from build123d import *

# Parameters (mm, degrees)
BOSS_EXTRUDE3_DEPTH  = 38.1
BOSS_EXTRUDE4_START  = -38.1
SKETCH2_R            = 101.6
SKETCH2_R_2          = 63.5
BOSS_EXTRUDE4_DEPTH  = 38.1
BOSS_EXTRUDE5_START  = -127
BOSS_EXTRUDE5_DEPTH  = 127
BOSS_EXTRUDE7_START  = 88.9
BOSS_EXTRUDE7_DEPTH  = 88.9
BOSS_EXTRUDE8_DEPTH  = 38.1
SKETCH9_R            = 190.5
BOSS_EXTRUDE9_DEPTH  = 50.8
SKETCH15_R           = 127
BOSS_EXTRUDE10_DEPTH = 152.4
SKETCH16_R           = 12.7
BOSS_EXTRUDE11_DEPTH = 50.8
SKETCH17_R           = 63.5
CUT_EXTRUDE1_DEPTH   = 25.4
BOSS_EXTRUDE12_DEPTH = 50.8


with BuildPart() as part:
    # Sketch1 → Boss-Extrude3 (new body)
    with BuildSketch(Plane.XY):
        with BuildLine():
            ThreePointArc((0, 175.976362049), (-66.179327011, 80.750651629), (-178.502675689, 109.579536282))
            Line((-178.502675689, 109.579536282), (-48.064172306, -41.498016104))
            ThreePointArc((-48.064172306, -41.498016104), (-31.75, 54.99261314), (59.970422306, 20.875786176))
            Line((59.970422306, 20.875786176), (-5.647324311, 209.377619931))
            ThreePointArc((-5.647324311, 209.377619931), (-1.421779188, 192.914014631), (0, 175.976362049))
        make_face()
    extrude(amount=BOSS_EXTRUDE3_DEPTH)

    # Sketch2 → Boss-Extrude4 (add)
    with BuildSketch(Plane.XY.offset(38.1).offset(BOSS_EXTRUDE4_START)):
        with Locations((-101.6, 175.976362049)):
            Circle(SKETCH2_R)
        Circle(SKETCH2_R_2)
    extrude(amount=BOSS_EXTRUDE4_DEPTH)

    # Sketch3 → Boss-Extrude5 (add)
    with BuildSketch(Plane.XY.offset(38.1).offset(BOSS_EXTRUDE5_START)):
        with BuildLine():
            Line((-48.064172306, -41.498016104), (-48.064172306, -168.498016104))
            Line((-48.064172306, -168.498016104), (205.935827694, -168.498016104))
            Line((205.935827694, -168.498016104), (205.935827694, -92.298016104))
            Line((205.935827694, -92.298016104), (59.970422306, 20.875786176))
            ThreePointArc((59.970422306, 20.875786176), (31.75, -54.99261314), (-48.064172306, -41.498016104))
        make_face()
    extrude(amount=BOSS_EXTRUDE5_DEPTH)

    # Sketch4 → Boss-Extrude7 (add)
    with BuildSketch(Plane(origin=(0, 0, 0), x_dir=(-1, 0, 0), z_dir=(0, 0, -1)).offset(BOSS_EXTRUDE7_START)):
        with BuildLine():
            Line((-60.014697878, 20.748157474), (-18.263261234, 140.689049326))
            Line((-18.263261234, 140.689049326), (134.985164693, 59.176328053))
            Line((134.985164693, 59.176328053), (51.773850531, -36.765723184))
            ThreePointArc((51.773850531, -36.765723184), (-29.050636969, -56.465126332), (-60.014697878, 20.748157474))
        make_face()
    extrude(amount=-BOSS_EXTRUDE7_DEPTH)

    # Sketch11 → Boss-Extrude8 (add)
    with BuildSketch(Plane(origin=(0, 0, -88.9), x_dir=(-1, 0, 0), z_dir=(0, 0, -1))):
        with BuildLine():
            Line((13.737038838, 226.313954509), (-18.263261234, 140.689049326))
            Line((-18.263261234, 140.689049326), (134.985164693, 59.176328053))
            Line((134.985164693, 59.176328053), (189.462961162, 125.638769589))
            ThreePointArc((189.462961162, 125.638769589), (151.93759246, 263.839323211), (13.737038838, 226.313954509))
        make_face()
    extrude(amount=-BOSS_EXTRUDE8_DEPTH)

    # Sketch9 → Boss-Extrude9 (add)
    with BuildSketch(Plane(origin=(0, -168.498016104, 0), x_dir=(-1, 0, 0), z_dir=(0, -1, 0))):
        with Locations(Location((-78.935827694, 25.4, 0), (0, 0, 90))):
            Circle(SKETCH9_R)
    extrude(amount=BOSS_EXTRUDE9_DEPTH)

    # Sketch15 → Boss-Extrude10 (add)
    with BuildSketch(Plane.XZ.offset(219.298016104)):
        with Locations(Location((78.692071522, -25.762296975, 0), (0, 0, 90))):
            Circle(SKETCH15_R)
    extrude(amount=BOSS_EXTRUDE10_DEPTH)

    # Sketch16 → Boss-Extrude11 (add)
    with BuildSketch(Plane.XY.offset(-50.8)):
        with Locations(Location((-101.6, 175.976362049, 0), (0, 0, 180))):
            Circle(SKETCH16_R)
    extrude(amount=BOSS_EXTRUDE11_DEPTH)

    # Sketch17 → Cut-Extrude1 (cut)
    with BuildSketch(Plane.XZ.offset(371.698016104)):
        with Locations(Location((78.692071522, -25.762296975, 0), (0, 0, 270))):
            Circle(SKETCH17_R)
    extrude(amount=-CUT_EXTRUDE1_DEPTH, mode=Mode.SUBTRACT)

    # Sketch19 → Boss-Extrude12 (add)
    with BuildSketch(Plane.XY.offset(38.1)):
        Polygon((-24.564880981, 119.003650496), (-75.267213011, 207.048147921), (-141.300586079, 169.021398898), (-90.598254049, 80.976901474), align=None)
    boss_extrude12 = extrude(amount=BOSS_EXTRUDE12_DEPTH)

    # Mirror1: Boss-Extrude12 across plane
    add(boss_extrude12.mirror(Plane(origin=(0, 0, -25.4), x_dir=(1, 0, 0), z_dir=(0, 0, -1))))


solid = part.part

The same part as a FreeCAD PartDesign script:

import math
import FreeCAD as App
import Part
import Sketcher

V = App.Vector
Q = App.Units.Quantity

doc = App.newDocument("Part")
body = doc.addObject("PartDesign::Body", "Body")

# Sketch on XY plane
sketch1 = body.newObject("Sketcher::SketchObject", "Sketch")
sketch1.AttachmentSupport = (doc.getObject("XY_Plane"), [""])
sketch1.MapMode = "FlatFace"
sketch1.addGeometry([
    Part.ArcOfCircle(Part.Circle(V(-102, 176, 0), V(0, 0, 1), 102), math.radians(-139), math.radians(0)),  # 0
    Part.LineSegment(V(-179, 110, 0), V(-48, -41, 0)),  # 1
    Part.ArcOfCircle(Part.Circle(V(0, 0, 0), V(0, 0, 1), 64), math.radians(19), math.radians(221)),  # 2
    Part.LineSegment(V(60, 21, 0), V(-6, 209, 0)),  # 3
    Part.ArcOfCircle(Part.Circle(V(-102, 176, 0), V(0, 0, 1), 102), math.radians(0), math.radians(19.19)),  # 4
], False)
sketch1.addConstraint([
    Sketcher.Constraint("Tangent", 0, 1, 1, 1),
    Sketcher.Constraint("Tangent", 1, 2, 2, 2),
    Sketcher.Constraint("Tangent", 2, 1, 3, 1),
    Sketcher.Constraint("Tangent", 3, 2, 4, 2),
    Sketcher.Constraint("Tangent", 4, 1, 0, 2),
    Sketcher.Constraint("Coincident", 2, 3, -1, 1),
    Sketcher.Constraint("Equal", 0, 4),
    Sketcher.Constraint("PointOnObject", 4, 1, -2),
    Sketcher.Constraint("Horizontal", 0, 3, 4, 1),
    Sketcher.Constraint("Radius", 0, Q("4 in")),
    Sketcher.Constraint("Radius", 2, Q("2.5 in")),
    Sketcher.Constraint("DistanceY", -1, 1, 3, 2, Q("209.37762 mm")),
])
pad1 = body.newObject("PartDesign::Pad", "Pad")
pad1.Profile = sketch1
pad1.Length = Q("1.5 in")

# Sketch on XY plane
sketch2 = body.newObject("Sketcher::SketchObject", "Sketch001")
sketch2.AttachmentSupport = (doc.getObject("XY_Plane"), [""])
sketch2.MapMode = "FlatFace"
sketch2.addGeometry([
    Part.Circle(V(-102, 176, 0), V(0, 0, 1), 102),
    Part.Circle(V(0, 0, 0), V(0, 0, 1), 64),
], False)
sketch2.addConstraint([
    Sketcher.Constraint("Coincident", 1, 3, -1, 1),
    Sketcher.Constraint("Diameter", 0, Q("8 in")),
    Sketcher.Constraint("Diameter", 1, Q("5 in")),
    Sketcher.Constraint("DistanceX", 0, 3, -1, 1, Q("4 in")),
    Sketcher.Constraint("DistanceY", -1, 1, 0, 3, Q("175.976362 mm")),
])
pad2 = body.newObject("PartDesign::Pad", "Pad001")
pad2.Profile = sketch2
pad2.Length = Q("1.5 in")

# Sketch on XY plane
sketch3 = body.newObject("Sketcher::SketchObject", "Sketch002")
sketch3.AttachmentSupport = (doc.getObject("XY_Plane"), [""])
sketch3.MapMode = "FlatFace"
sketch3.AttachmentOffset = App.Placement(V(0, 0, -3.5 * 25.4), App.Rotation())
sketch3.addGeometry([
    Part.LineSegment(V(-48, -41, 0), V(-48, -168, 0)),  # 0
    Part.LineSegment(V(-48, -168, 0), V(206, -168, 0)),  # 1
    Part.LineSegment(V(206, -168, 0), V(206, -92, 0)),  # 2
    Part.LineSegment(V(206, -92, 0), V(60, 21, 0)),  # 3
    Part.ArcOfCircle(Part.Circle(V(0, 0, 0), V(0, 0, 1), 64), math.radians(-139), math.radians(19)),  # 4
], False)
sketch3.addConstraint([
    Sketcher.Constraint("Coincident", 0, 2, 1, 1),
    Sketcher.Constraint("Coincident", 1, 2, 2, 1),
    Sketcher.Constraint("Coincident", 2, 2, 3, 1),
    Sketcher.Constraint("Coincident", 3, 2, 4, 2),
    Sketcher.Constraint("Coincident", 4, 1, 0, 1),
    Sketcher.Constraint("Vertical", 0),
    Sketcher.Constraint("Horizontal", 1),
    Sketcher.Constraint("Vertical", 2),
    Sketcher.Constraint("Coincident", 4, 3, -1, 1),
    Sketcher.Constraint("Radius", 4, Q("2.5 in")),
    Sketcher.Constraint("DistanceX", 1, 1, 1, 2, Q("10 in")),
    Sketcher.Constraint("DistanceY", 0, 2, 0, 1, Q("5 in")),
    Sketcher.Constraint("DistanceY", 2, 1, 2, 2, Q("3 in")),
    Sketcher.Constraint("Distance", 3, Q("184.700322 mm")),
    Sketcher.Constraint("DistanceX", 0, 2, -1, 1, Q("48.064172 mm")),
])
pad3 = body.newObject("PartDesign::Pad", "Pad002")
pad3.Profile = sketch3
pad3.Length = Q("5 in")

# Sketch on XY plane
sketch4 = body.newObject("Sketcher::SketchObject", "Sketch003")
sketch4.AttachmentSupport = (doc.getObject("XY_Plane"), [""])
sketch4.MapMode = "FlatFace"
sketch4.AttachmentOffset = App.Placement(V(0, 0, -3.5 * 25.4), App.Rotation())
sketch4.addGeometry([
    Part.LineSegment(V(18, 141, 0), V(60, 21, 0)),
    Part.ArcOfCircle(Part.Circle(V(0, 0, 0), V(0, 0, 1), 64), math.radians(-145), math.radians(19)),
    Part.LineSegment(V(-52, -37, 0), V(-135, 59, 0)),
    Part.LineSegment(V(-135, 59, 0), V(18, 141, 0)),
], False)
sketch4.addConstraint([
    Sketcher.Constraint("Coincident", 0, 2, 1, 2),
    Sketcher.Constraint("Coincident", 1, 1, 2, 1),
    Sketcher.Constraint("Coincident", 2, 2, 3, 1),
    Sketcher.Constraint("Coincident", 3, 2, 0, 1),
    Sketcher.Constraint("Coincident", 1, 3, -1, 1),
    Sketcher.Constraint("Equal", 0, 2),
    Sketcher.Constraint("Radius", 1, Q("2.5 in")),
    Sketcher.Constraint("Distance", 0, Q("5 in")),
    Sketcher.Constraint("DistanceX", 1, 1, -1, 1, Q("51.773851 mm")),
    Sketcher.Constraint("DistanceY", -1, 1, 2, 2, Q("59.176328 mm")),
    Sketcher.Constraint("DistanceX", -1, 1, 3, 2, Q("18.263261 mm")),
    Sketcher.Constraint("DistanceY", -1, 1, 3, 2, Q("140.689049 mm")),
])
pad4 = body.newObject("PartDesign::Pad", "Pad003")
pad4.Profile = sketch4
pad4.Length = Q("3.5 in")

# Sketch on XY plane
sketch5 = body.newObject("Sketcher::SketchObject", "Sketch004")
sketch5.AttachmentSupport = (doc.getObject("XY_Plane"), [""])
sketch5.MapMode = "FlatFace"
sketch5.AttachmentOffset = App.Placement(V(0, 0, -3.5 * 25.4), App.Rotation())
sketch5.addGeometry([
    Part.LineSegment(V(-14, 226, 0), V(18, 141, 0)),
    Part.LineSegment(V(18, 141, 0), V(-135, 59, 0)),
    Part.LineSegment(V(-135, 59, 0), V(-189, 126, 0)),
    Part.ArcOfCircle(Part.Circle(V(-102, 176, 0), V(0, 0, 1), 101), math.radians(30), math.radians(210)),
], False)
sketch5.addConstraint([
    Sketcher.Constraint("Coincident", 0, 2, 1, 1),
    Sketcher.Constraint("Coincident", 1, 2, 2, 1),
    Sketcher.Constraint("Coincident", 2, 2, 3, 2),
    Sketcher.Constraint("Coincident", 3, 1, 0, 1),
    Sketcher.Constraint("DistanceX", 3, 3, -1, 1, Q("4 in")),
    Sketcher.Constraint("Radius", 3, Q("101.260916 mm")),
    Sketcher.Constraint("DistanceX", 3, 1, 0, 2, Q("32.0003 mm")),
    Sketcher.Constraint("Distance", 0, Q("91.40921 mm")),
    Sketcher.Constraint("DistanceX", -1, 1, 0, 2, Q("18.263261 mm")),
    Sketcher.Constraint("DistanceY", -1, 1, 0, 2, Q("140.689049 mm")),
    Sketcher.Constraint("DistanceY", -1, 1, 1, 2, Q("59.176328 mm")),
    Sketcher.Constraint("DistanceX", 2, 2, -1, 1, Q("189.462961 mm")),
    Sketcher.Constraint("Distance", 1, Q("173.578235 mm")),
])
pad5 = body.newObject("PartDesign::Pad", "Pad004")
pad5.Profile = sketch5
pad5.Length = Q("1.5 in")

# Sketch on XZ plane
sketch6 = body.newObject("Sketcher::SketchObject", "Sketch005")
sketch6.AttachmentSupport = (doc.getObject("XZ_Plane"), [""])
sketch6.MapMode = "FlatFace"
sketch6.AttachmentOffset = App.Placement(V(0, 0, 168.498016), App.Rotation())
sketch6.addGeometry(Part.Circle(V(79, -25, 0), V(0, 0, 1), 190), False)
sketch6.addConstraint([
    Sketcher.Constraint("Diameter", 0, Q("15 in")),
    Sketcher.Constraint("DistanceY", 0, 3, -1, 1, Q("1 in")),
    Sketcher.Constraint("DistanceX", -1, 1, 0, 3, Q("78.935828 mm")),
])
pad6 = body.newObject("PartDesign::Pad", "Pad005")
pad6.Profile = sketch6
pad6.Length = Q("2 in")

# Sketch on XZ plane
sketch7 = body.newObject("Sketcher::SketchObject", "Sketch006")
sketch7.AttachmentSupport = (doc.getObject("XZ_Plane"), [""])
sketch7.MapMode = "FlatFace"
sketch7.AttachmentOffset = App.Placement(V(0, 0, 219.298016), App.Rotation())
sketch7.addGeometry(Part.Circle(V(79, -26, 0), V(0, 0, 1), 127), False)
sketch7.addConstraint([
    Sketcher.Constraint("Diameter", 0, Q("10 in")),
    Sketcher.Constraint("DistanceX", -1, 1, 0, 3, Q("78.692072 mm")),
    Sketcher.Constraint("DistanceY", 0, 3, -1, 1, Q("25.762297 mm")),
])
pad7 = body.newObject("PartDesign::Pad", "Pad006")
pad7.Profile = sketch7
pad7.Length = Q("6 in")

# Sketch on XY plane
sketch8 = body.newObject("Sketcher::SketchObject", "Sketch007")
sketch8.AttachmentSupport = (doc.getObject("XY_Plane"), [""])
sketch8.MapMode = "FlatFace"
sketch8.AttachmentOffset = App.Placement(V(0, 0, -2 * 25.4), App.Rotation())
sketch8.addGeometry(Part.Circle(V(-102, 176, 0), V(0, 0, 1), 13), False)
sketch8.addConstraint([
    Sketcher.Constraint("Diameter", 0, Q("1 in")),
    Sketcher.Constraint("DistanceX", 0, 3, -1, 1, Q("4 in")),
    Sketcher.Constraint("DistanceY", -1, 1, 0, 3, Q("175.976362 mm")),
])
pad8 = body.newObject("PartDesign::Pad", "Pad007")
pad8.Profile = sketch8
pad8.Length = Q("2 in")

# Sketch on XZ plane
sketch9 = body.newObject("Sketcher::SketchObject", "Sketch008")
sketch9.AttachmentSupport = (doc.getObject("XZ_Plane"), [""])
sketch9.MapMode = "FlatFace"
sketch9.AttachmentOffset = App.Placement(V(0, 0, 371.698016), App.Rotation())
sketch9.addGeometry(Part.Circle(V(79, -26, 0), V(0, 0, 1), 64), False)
sketch9.addConstraint([
    Sketcher.Constraint("Diameter", 0, Q("5 in")),
    Sketcher.Constraint("DistanceX", -1, 1, 0, 3, Q("78.692072 mm")),
    Sketcher.Constraint("DistanceY", 0, 3, -1, 1, Q("25.762297 mm")),
])
pocket1 = body.newObject("PartDesign::Pocket", "Pocket")
pocket1.Profile = sketch9
pocket1.Length = Q("1 in")

# Sketch on XY plane
sketch10 = body.newObject("Sketcher::SketchObject", "Sketch009")
sketch10.AttachmentSupport = (doc.getObject("XY_Plane"), [""])
sketch10.MapMode = "FlatFace"
sketch10.AttachmentOffset = App.Placement(V(0, 0, 1.5 * 25.4), App.Rotation())
sketch10.addGeometry([
    Part.LineSegment(V(-25, 119, 0), V(-75, 207, 0)),
    Part.LineSegment(V(-75, 207, 0), V(-141, 169, 0)),
    Part.LineSegment(V(-141, 169, 0), V(-91, 81, 0)),
    Part.LineSegment(V(-91, 81, 0), V(-25, 119, 0)),
], False)
sketch10.addConstraint([
    Sketcher.Constraint("Coincident", 0, 2, 1, 1),
    Sketcher.Constraint("Coincident", 1, 2, 2, 1),
    Sketcher.Constraint("Coincident", 2, 2, 3, 1),
    Sketcher.Constraint("Coincident", 3, 2, 0, 1),
    Sketcher.Constraint("Perpendicular", 0, 1),
    Sketcher.Constraint("Perpendicular", 1, 2),
    Sketcher.Constraint("Perpendicular", 2, 3),
    Sketcher.Constraint("Distance", 0, Q("4 in")),
    Sketcher.Constraint("Distance", 1, Q("3 in")),
    Sketcher.Constraint("DistanceY", -1, 1, 1, 2, Q("169.021399 mm")),
    Sketcher.Constraint("DistanceY", -1, 1, 2, 2, Q("80.976901 mm")),
    Sketcher.Constraint("DistanceX", 3, 2, -1, 1, Q("24.564881 mm")),
])
pad9 = body.newObject("PartDesign::Pad", "Pad008")
pad9.Profile = sketch10
pad9.Length = Q("2 in")
doc.recompute()

datumplane = body.newObject("PartDesign::Plane", "DatumPlane")
datumplane.AttachmentSupport = (doc.getObject("XY_Plane"), [""])
datumplane.MapMode = "FlatFace"
datumplane.AttachmentOffset = App.Placement(V(0, 0, -1 * 25.4), App.Rotation())
mirrored = body.newObject("PartDesign::Mirrored", "Mirrored")
mirrored.Originals = [pad9]
mirrored.MirrorPlane = (datumplane, [""])
body.Tip = mirrored

doc.recompute()
